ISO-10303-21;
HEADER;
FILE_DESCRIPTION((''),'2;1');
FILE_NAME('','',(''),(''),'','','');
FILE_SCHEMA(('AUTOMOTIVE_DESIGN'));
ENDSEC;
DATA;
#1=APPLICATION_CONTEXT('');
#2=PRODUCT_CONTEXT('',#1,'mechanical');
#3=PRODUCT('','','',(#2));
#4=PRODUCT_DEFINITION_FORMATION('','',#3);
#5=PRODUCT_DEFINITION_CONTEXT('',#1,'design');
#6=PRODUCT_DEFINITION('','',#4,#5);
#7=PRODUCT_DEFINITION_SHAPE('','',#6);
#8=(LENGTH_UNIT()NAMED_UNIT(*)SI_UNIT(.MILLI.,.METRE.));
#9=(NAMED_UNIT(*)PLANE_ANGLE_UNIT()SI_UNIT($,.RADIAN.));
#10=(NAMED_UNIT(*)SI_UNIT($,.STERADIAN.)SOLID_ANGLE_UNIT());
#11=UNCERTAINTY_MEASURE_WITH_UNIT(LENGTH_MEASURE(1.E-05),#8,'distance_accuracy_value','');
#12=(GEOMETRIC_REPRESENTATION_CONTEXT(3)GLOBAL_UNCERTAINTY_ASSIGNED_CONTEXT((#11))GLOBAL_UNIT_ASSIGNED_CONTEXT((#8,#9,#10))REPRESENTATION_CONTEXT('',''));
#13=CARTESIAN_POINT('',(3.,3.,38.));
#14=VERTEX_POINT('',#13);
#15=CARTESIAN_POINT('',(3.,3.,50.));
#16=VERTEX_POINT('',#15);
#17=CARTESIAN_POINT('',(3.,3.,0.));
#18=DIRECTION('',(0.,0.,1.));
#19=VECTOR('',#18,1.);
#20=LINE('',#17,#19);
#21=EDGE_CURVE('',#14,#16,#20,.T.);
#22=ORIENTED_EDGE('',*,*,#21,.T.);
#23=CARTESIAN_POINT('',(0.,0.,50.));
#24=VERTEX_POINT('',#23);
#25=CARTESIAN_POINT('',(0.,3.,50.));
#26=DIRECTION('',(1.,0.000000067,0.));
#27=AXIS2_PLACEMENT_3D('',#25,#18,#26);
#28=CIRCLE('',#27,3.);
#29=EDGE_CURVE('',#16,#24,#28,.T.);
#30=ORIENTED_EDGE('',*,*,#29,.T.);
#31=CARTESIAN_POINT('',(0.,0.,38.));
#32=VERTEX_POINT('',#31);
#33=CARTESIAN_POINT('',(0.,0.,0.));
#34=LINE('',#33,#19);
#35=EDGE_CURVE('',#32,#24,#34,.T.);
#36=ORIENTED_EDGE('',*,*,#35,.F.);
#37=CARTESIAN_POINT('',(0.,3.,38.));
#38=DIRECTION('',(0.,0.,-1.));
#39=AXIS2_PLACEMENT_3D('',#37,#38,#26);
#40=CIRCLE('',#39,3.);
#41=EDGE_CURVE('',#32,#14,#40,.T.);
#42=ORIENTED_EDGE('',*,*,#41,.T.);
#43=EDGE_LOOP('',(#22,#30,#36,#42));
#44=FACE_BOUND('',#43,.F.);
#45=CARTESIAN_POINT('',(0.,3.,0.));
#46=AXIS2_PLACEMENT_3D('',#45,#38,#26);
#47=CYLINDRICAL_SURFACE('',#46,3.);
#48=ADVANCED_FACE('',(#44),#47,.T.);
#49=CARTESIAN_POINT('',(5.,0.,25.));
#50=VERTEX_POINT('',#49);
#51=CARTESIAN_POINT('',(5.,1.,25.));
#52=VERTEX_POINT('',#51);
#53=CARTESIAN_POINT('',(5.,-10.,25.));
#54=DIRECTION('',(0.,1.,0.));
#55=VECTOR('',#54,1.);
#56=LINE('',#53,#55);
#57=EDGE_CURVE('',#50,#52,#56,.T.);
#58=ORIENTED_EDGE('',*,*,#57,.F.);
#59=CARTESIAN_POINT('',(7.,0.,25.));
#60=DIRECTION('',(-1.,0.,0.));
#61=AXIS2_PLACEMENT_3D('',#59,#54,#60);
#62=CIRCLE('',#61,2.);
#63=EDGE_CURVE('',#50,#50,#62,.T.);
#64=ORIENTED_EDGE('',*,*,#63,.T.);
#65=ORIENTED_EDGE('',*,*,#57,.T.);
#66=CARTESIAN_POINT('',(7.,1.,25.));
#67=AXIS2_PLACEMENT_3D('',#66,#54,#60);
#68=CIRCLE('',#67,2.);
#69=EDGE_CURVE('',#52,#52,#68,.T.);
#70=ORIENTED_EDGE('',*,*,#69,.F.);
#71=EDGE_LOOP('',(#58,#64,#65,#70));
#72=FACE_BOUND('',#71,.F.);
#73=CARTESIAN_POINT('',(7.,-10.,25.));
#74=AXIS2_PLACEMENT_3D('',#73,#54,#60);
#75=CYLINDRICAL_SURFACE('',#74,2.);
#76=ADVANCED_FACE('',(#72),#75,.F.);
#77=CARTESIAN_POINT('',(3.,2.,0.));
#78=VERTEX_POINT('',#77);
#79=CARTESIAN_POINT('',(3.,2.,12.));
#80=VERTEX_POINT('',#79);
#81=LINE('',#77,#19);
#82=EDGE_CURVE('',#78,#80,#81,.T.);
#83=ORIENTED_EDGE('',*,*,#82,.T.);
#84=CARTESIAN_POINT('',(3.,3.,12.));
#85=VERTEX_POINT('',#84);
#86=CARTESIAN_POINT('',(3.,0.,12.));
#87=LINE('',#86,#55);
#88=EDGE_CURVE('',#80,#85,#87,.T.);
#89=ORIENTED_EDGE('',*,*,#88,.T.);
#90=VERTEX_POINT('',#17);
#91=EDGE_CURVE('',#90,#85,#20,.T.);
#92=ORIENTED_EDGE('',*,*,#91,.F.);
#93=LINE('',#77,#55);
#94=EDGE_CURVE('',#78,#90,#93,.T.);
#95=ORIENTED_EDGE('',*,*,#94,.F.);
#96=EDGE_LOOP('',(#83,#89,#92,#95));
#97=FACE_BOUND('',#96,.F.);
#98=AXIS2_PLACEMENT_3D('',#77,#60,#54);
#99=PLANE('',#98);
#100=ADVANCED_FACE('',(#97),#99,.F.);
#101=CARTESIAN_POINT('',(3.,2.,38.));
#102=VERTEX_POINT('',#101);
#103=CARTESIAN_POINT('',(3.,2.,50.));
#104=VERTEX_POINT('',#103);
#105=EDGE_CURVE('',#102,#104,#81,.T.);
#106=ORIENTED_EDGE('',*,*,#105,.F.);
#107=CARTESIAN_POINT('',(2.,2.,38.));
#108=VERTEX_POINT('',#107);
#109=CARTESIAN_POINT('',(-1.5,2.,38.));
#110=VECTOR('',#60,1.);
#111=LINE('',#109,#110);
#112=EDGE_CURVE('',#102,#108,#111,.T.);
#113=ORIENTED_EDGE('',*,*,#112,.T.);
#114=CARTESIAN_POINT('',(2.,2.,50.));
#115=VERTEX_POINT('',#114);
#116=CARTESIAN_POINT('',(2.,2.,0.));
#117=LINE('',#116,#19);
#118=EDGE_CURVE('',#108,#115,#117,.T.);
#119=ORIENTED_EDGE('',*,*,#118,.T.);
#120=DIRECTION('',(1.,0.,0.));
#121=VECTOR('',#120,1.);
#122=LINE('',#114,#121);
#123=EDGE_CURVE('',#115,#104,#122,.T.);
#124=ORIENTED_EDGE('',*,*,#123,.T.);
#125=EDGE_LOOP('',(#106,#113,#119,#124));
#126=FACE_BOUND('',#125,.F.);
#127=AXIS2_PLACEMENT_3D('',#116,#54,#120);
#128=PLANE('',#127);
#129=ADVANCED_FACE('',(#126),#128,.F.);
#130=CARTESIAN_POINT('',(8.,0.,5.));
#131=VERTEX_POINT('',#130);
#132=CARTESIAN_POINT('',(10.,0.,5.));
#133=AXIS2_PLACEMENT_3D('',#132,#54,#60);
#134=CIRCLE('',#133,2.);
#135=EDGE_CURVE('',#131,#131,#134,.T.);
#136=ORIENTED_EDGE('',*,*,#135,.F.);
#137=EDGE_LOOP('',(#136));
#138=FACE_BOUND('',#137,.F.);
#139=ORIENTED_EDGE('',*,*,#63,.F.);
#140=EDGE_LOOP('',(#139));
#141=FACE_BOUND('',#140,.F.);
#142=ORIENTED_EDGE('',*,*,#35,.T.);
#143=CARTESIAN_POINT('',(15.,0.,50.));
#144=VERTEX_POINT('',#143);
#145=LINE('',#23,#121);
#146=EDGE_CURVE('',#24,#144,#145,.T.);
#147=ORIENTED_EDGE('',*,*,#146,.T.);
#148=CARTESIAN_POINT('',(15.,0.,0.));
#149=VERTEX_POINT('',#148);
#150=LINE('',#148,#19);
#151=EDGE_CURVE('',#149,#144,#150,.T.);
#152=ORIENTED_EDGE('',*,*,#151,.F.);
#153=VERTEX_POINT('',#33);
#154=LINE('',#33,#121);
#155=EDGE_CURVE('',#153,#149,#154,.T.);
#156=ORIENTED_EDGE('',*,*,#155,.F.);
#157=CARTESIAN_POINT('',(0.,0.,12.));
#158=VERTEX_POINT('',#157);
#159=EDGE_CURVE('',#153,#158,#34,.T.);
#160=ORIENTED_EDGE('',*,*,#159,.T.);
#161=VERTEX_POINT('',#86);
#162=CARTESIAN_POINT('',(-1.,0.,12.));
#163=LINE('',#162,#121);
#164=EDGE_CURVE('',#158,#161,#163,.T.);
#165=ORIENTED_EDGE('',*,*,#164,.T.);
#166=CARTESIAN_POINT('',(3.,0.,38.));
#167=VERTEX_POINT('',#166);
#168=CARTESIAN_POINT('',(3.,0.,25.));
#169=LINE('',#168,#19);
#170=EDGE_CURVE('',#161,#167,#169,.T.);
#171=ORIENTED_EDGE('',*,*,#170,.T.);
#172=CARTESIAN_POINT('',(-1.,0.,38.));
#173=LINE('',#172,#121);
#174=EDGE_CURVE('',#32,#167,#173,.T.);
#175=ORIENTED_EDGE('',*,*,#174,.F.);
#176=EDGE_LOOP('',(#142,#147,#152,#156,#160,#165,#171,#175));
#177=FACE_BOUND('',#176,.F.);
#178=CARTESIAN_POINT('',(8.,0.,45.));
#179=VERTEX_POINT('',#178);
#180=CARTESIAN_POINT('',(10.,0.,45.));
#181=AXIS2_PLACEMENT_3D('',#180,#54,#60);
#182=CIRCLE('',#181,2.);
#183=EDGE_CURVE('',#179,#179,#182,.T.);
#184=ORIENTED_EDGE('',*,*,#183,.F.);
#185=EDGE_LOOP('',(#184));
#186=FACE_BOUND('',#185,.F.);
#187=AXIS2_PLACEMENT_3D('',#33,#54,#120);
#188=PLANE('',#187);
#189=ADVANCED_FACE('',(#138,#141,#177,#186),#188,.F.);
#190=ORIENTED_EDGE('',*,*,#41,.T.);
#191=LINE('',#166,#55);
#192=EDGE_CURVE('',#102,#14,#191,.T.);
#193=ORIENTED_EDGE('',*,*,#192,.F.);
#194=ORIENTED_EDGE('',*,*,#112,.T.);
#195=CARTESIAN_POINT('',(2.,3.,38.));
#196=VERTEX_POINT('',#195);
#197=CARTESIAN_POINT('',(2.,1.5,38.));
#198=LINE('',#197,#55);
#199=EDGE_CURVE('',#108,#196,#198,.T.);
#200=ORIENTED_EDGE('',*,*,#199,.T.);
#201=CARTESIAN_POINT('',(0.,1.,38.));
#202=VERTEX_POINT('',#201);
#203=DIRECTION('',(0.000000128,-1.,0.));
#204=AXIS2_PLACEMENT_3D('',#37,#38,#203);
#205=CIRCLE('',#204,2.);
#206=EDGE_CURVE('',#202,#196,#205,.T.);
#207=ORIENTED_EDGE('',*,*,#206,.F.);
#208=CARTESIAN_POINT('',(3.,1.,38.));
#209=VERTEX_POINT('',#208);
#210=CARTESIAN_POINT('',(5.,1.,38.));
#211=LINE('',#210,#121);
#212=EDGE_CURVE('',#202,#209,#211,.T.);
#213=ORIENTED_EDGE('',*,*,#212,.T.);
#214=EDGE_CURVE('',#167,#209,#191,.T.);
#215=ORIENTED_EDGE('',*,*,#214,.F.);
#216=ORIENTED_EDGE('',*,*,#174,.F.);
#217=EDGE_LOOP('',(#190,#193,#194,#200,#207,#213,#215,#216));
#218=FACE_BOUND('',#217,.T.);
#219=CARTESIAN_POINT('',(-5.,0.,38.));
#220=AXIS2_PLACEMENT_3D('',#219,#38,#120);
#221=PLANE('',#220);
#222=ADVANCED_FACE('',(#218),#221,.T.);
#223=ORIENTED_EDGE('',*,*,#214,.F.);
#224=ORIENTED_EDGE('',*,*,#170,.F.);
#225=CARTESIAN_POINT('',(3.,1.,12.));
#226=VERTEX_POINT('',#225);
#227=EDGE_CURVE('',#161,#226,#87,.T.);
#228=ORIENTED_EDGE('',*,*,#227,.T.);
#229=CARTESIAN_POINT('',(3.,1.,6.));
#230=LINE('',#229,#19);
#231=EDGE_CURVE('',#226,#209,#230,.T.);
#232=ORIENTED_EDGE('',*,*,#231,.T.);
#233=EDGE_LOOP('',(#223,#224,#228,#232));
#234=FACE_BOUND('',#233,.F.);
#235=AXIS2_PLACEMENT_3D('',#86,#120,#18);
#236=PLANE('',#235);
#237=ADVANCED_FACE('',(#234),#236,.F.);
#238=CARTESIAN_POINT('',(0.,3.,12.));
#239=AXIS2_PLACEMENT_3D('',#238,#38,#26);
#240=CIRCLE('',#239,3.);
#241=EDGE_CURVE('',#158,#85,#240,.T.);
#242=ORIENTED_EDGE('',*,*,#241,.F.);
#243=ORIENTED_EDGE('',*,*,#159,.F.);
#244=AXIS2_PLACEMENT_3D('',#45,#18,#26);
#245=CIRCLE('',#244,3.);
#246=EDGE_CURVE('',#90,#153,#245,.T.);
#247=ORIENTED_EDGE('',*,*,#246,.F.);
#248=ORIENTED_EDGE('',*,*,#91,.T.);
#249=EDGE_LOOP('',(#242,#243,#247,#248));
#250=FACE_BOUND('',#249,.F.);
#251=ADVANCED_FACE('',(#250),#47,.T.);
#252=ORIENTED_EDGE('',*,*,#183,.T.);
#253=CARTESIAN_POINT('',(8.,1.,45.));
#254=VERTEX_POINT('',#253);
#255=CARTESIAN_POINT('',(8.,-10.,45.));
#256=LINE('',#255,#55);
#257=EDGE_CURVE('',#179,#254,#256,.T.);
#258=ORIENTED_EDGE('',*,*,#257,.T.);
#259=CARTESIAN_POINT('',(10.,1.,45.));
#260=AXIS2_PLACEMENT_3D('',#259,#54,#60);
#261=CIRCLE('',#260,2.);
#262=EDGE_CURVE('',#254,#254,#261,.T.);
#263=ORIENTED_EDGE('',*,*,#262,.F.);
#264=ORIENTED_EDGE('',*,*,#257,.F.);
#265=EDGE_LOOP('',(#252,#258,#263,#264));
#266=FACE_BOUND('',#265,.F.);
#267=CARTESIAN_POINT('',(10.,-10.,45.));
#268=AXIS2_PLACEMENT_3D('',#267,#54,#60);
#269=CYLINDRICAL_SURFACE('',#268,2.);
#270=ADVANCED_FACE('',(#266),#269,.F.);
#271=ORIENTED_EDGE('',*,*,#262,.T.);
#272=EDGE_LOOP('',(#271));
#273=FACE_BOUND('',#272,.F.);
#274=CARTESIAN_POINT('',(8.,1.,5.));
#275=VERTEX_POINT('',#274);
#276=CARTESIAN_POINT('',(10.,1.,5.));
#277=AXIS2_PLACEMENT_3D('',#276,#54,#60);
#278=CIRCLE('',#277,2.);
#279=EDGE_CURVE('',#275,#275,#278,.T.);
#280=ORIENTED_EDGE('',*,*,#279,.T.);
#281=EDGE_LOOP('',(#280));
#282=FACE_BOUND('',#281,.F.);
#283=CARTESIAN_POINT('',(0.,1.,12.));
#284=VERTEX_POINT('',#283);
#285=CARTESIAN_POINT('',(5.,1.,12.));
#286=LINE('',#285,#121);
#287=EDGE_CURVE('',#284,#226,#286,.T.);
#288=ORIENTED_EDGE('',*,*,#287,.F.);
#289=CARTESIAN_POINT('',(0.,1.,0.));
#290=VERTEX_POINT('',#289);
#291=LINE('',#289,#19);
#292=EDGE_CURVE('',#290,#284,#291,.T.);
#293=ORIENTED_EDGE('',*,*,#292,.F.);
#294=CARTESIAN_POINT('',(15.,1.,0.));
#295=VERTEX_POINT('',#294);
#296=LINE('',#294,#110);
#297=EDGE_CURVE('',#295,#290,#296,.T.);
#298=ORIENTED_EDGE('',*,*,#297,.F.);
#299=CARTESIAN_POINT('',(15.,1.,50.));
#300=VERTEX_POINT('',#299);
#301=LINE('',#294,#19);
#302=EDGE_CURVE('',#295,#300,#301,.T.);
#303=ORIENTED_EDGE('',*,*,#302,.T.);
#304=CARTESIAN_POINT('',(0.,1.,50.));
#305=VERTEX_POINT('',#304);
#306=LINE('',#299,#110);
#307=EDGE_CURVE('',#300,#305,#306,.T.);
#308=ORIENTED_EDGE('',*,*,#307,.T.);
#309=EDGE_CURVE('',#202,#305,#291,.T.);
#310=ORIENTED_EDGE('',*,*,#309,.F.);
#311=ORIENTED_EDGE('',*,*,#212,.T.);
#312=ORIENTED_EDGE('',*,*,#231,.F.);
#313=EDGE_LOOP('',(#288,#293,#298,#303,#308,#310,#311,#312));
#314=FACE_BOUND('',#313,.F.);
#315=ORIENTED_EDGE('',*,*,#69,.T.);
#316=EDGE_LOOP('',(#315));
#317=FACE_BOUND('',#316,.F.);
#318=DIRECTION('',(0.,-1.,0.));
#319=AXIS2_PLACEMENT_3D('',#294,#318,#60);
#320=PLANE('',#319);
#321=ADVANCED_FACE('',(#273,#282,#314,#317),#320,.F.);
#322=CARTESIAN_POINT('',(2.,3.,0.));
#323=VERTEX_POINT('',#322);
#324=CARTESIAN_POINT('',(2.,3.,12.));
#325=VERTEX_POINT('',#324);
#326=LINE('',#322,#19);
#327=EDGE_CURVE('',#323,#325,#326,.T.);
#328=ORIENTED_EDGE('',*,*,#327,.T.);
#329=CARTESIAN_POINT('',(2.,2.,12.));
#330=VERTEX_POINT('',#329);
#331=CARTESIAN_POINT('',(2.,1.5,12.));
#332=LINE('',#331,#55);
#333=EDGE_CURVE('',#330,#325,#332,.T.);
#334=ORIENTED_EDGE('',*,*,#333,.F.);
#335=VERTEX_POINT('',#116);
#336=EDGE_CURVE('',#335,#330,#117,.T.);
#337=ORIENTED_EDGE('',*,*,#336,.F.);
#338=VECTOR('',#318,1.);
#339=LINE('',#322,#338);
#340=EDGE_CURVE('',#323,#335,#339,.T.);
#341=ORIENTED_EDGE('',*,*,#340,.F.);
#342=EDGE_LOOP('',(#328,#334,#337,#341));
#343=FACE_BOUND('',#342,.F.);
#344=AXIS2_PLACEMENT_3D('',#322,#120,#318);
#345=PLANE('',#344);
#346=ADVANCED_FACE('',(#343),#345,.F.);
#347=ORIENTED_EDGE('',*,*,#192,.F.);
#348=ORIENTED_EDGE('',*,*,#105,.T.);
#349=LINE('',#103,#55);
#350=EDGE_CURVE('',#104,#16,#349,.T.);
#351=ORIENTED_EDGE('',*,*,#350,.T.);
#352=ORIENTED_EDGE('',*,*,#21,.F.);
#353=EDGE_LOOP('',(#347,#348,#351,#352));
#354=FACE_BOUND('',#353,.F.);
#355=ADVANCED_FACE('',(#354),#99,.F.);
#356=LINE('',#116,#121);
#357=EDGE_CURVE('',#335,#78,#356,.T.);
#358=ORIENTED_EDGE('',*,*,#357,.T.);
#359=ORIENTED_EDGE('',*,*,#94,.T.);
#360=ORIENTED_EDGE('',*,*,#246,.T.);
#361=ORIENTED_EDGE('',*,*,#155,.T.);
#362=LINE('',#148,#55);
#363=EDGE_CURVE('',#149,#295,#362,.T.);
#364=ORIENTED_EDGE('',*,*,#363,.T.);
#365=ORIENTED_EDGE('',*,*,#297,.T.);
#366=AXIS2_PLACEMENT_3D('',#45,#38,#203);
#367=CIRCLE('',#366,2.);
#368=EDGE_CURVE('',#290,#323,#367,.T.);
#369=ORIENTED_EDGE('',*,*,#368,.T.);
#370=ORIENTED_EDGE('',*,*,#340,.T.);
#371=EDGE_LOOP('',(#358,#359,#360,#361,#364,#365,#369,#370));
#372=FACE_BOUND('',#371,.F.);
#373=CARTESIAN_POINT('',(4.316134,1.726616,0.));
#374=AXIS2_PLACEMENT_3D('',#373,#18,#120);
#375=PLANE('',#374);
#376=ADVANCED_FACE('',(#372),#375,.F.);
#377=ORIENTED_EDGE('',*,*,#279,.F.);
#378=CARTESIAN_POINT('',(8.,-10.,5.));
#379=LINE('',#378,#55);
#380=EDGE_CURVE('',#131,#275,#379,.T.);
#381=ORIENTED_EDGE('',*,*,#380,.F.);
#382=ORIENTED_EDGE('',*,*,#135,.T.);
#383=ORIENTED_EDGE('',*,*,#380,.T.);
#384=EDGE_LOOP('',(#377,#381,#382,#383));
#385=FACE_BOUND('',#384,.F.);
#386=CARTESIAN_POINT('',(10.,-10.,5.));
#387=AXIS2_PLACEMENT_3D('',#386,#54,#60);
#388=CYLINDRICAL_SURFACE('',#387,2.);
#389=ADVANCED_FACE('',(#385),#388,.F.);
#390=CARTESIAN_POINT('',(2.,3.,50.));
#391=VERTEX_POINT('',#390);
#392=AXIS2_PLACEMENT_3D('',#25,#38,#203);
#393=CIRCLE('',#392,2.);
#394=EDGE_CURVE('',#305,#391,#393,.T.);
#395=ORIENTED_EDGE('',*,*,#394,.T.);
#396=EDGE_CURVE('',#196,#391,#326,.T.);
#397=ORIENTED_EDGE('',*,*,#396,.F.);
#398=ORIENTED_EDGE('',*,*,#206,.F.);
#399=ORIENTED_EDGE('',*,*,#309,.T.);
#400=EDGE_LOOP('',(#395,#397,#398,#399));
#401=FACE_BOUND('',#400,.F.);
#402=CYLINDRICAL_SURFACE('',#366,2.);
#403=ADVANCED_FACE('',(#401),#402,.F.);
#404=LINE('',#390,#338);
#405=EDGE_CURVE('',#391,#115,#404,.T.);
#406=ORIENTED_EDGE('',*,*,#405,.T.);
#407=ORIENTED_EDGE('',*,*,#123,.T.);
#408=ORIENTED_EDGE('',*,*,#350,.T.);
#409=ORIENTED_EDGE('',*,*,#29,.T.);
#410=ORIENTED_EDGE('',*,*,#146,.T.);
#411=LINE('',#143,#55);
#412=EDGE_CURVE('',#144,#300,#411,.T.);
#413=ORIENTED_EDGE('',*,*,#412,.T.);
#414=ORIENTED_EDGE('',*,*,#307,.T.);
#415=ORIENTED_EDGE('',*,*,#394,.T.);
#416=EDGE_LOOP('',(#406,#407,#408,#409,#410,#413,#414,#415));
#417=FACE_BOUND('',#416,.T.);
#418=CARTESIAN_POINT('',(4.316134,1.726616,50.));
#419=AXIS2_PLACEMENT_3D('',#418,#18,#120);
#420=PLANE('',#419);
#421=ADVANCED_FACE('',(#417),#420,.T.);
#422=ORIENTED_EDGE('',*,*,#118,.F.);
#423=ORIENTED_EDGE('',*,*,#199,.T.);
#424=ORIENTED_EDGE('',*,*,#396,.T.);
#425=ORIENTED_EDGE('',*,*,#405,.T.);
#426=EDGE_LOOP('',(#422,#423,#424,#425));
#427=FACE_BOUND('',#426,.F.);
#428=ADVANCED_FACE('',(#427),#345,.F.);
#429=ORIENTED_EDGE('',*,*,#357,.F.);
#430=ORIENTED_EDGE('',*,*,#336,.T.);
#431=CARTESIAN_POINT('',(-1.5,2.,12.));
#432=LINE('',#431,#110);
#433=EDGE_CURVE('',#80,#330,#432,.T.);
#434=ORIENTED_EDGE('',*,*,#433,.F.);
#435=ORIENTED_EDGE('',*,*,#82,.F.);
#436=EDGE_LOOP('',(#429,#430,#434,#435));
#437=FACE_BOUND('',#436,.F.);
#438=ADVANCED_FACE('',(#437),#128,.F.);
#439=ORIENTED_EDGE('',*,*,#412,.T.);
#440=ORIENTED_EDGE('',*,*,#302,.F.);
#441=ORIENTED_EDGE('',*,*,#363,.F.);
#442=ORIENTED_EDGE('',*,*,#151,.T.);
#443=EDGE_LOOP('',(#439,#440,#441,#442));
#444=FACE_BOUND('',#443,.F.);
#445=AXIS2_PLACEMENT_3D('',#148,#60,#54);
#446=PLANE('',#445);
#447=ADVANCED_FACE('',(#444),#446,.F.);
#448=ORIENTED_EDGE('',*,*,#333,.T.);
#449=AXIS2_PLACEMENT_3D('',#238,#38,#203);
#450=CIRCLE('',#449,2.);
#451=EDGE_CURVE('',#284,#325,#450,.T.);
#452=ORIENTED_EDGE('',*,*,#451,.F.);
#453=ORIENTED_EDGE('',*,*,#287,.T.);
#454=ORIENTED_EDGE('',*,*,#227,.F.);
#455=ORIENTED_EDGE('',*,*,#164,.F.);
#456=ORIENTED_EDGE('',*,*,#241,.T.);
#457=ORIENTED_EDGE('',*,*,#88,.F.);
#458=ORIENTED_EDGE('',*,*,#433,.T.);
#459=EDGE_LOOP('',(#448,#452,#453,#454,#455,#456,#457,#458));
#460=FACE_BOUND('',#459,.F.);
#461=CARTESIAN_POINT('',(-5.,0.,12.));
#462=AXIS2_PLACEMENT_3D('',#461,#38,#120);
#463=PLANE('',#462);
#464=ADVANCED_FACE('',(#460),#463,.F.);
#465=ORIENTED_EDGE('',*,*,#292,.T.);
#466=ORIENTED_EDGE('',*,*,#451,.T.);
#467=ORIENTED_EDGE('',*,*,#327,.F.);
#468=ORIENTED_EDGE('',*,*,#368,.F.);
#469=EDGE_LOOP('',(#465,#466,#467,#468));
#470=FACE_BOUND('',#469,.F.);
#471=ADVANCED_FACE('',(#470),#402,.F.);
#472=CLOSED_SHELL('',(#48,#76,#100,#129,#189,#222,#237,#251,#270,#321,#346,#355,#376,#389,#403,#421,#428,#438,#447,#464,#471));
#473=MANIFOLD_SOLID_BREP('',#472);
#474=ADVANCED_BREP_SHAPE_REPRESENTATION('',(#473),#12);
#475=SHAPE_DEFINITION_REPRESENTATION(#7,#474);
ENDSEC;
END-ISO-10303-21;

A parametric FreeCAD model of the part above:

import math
import FreeCAD as App
import Part
import Sketcher
from FreeCAD import Vector


def add_polygon(sketch, points):
    """Adds a closed chain of lines whose ends are joined by coincident constraints."""
    first, n = sketch.GeometryCount, len(points)
    for a, b in zip(points, points[1:] + points[:1]):
        sketch.addGeometry(Part.LineSegment(App.Vector(*a, 0), App.Vector(*b, 0)), False)
    for i in range(n):
        sketch.addConstraint(Sketcher.Constraint("Coincident", first + i, 2, first + (i + 1) % n, 1))

doc = App.newDocument("Part")
body = doc.addObject("PartDesign::Body", "Body")

sketch1 = body.newObject("Sketcher::SketchObject", "Sketch")
sketch1.AttachmentSupport = (doc.getObject("XY_Plane"), [""])
sketch1.MapMode = "FlatFace"
sketch1.addGeometry([
    Part.LineSegment(Vector(0, 0, 0), Vector(15, 0, 0)),
    Part.LineSegment(Vector(15, 0, 0), Vector(15, 1, 0)),
    Part.LineSegment(Vector(15, 1, 0), Vector(0, 1, 0)),
    Part.ArcOfCircle(Part.Circle(Vector(0, 3, 0), Vector(0, 0, 1), 2), math.radians(0), math.radians(270)),
    Part.LineSegment(Vector(2, 3, 0), Vector(2, 2, 0)),
    Part.LineSegment(Vector(2, 2, 0), Vector(3, 2, 0)),
    Part.LineSegment(Vector(3, 2, 0), Vector(3, 3, 0)),
    Part.ArcOfCircle(Part.Circle(Vector(0, 3, 0), Vector(0, 0, 1), 3), math.radians(0), math.radians(270)),
], False)
sketch1.addConstraint([
    Sketcher.Constraint("Coincident", 0, 2, 1, 1),
    Sketcher.Constraint("Coincident", 1, 2, 2, 1),
    Sketcher.Constraint("Tangent", 2, 2, 3, 2),
    Sketcher.Constraint("Tangent", 3, 1, 4, 1),
    Sketcher.Constraint("Coincident", 4, 2, 5, 1),
    Sketcher.Constraint("Coincident", 5, 2, 6, 1),
    Sketcher.Constraint("Tangent", 6, 2, 7, 1),
    Sketcher.Constraint("Tangent", 7, 2, 0, 1),
    Sketcher.Constraint("Horizontal", 0),
    Sketcher.Constraint("Vertical", 1),
    Sketcher.Constraint("Horizontal", 2),
    Sketcher.Constraint("Vertical", 4),
    Sketcher.Constraint("Horizontal", 5),
    Sketcher.Constraint("Vertical", 6),
    Sketcher.Constraint("Coincident", 7, 2, -1, 1),
    Sketcher.Constraint("Coincident", 7, 3, 3, 3),
    Sketcher.Constraint("Equal", 1, 4),
    Sketcher.Constraint("Radius", 3, 2.0),
    Sketcher.Constraint("Radius", 7, 3.0),
    Sketcher.Constraint("DistanceX", 0, 1, 0, 2, 15.0),
])
pad1 = body.newObject("PartDesign::Pad", "Pad")
pad1.Profile = sketch1
pad1.Length = 50

sketch2 = body.newObject("Sketcher::SketchObject", "Sketch001")
sketch2.AttachmentSupport = (doc.getObject("XZ_Plane"), [""])
sketch2.MapMode = "FlatFace"
sketch2.addGeometry([
    Part.Circle(Vector(10, 45, 0), Vector(0, 0, 1), 2),
    Part.Circle(Vector(7, 25, 0), Vector(0, 0, 1), 2),
    Part.Circle(Vector(10, 5, 0), Vector(0, 0, 1), 2),
], False)
sketch2.addConstraint([
    Sketcher.Constraint("Equal", 0, 1),
    Sketcher.Constraint("Equal", 1, 2),
    Sketcher.Constraint("Vertical", 0, 3, 2, 3),
    Sketcher.Constraint("Diameter", 0, 4.0),
    Sketcher.Constraint("DistanceX", -1, 1, 0, 3, 10.0),
    Sketcher.Constraint("DistanceY", -1, 1, 0, 3, 45.0),
    Sketcher.Constraint("DistanceX", -1, 1, 1, 3, 7.0),
    Sketcher.Constraint("DistanceY", -1, 1, 1, 3, 25.0),
    Sketcher.Constraint("DistanceY", -1, 1, 2, 3, 5.0),
])
doc.recompute()
hole = body.newObject("PartDesign::Hole", "Hole")
hole.Profile = sketch2
hole.ThreadType = "None"
hole.Diameter = 4
hole.DepthType = "Dimension"
hole.Depth = 10
hole.DrillPoint = "Flat"

sketch3 = body.newObject("Sketcher::SketchObject", "Sketch002")
sketch3.AttachmentSupport = (doc.getObject("XZ_Plane"), [""])
sketch3.MapMode = "FlatFace"
add_polygon(sketch3, [(-5, 38), (-5, 12), (3, 12), (3, 38)])
sketch3.addConstraint([
    Sketcher.Constraint("Vertical", 0),
    Sketcher.Constraint("Horizontal", 1),
    Sketcher.Constraint("Vertical", 2),
    Sketcher.Constraint("Horizontal", 3),
    Sketcher.Constraint("DistanceX", 1, 1, 1, 2, 8.0),
    Sketcher.Constraint("DistanceY", 0, 2, 0, 1, 26.0),
    Sketcher.Constraint("DistanceX", 0, 2, -1, 1, 5.0),
    Sketcher.Constraint("DistanceY", -1, 1, 0, 2, 12.0),
])
pocket1 = body.newObject("PartDesign::Pocket", "Pocket")
pocket1.Profile = sketch3
pocket1.Length = 25

doc.recompute()
